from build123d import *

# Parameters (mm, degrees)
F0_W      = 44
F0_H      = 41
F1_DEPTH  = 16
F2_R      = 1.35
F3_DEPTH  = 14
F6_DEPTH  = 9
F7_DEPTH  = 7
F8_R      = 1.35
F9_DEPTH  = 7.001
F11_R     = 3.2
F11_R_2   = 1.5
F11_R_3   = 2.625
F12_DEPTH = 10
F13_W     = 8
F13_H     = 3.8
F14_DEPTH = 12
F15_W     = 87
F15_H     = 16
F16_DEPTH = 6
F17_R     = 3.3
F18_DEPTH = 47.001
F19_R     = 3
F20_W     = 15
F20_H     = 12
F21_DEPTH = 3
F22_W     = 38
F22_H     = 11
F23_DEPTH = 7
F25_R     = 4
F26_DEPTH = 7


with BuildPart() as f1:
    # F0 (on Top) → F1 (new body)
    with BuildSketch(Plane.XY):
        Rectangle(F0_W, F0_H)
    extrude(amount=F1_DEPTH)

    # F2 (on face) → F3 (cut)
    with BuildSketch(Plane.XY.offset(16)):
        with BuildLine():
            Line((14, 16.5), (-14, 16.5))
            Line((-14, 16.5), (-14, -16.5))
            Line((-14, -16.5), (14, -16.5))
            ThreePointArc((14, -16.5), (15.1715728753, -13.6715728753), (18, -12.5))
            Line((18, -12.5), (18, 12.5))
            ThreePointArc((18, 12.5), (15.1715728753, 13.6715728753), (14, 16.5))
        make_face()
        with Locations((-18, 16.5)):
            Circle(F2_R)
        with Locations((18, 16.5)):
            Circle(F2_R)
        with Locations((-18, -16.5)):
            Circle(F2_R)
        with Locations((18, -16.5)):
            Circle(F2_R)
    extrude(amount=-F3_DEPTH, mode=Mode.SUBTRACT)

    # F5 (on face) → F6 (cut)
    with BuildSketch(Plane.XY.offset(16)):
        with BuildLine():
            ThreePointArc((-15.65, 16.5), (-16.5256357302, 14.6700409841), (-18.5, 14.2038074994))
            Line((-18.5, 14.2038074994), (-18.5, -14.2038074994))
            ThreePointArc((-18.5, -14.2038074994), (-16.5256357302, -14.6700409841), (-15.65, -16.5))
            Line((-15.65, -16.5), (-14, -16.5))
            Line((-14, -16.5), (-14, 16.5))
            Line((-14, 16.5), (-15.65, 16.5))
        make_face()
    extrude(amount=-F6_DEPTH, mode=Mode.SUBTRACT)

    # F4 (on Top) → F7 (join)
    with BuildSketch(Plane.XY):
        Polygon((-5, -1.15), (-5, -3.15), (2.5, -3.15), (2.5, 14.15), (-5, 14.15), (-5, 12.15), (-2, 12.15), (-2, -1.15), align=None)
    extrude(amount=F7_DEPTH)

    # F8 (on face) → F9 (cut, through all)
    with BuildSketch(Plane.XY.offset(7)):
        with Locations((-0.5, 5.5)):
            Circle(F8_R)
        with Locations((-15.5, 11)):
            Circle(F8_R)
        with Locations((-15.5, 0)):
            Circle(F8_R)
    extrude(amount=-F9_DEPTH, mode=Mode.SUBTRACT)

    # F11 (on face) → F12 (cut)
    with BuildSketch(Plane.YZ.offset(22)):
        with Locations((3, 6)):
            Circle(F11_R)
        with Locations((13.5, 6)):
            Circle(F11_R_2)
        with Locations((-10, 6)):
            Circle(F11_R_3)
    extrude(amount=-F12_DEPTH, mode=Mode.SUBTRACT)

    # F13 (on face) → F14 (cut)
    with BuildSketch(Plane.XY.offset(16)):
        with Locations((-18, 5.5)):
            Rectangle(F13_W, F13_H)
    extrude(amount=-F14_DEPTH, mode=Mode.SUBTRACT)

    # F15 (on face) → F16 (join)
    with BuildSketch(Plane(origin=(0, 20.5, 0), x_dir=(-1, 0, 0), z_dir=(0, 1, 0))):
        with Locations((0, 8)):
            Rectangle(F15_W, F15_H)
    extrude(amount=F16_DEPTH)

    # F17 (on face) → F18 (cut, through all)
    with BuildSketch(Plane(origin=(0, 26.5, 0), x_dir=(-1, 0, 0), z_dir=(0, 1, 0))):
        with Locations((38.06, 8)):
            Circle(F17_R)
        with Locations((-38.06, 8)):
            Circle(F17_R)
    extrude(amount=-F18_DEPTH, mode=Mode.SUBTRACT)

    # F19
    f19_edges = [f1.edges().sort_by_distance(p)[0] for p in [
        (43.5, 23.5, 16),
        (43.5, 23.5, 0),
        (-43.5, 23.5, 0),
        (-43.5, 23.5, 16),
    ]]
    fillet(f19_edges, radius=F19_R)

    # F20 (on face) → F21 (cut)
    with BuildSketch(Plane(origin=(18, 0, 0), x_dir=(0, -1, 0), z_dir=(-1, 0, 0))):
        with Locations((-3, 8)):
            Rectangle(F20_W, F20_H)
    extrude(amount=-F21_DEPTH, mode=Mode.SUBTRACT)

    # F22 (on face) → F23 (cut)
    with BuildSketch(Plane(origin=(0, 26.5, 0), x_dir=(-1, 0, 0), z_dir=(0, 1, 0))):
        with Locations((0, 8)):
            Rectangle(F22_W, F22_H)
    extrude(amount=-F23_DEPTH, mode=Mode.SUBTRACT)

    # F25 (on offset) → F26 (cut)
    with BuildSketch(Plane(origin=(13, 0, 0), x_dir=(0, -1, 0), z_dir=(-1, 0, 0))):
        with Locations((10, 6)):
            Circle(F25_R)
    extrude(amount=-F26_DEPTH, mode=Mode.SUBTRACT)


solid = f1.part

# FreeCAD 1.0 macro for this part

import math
import FreeCAD as App
import Part
import Sketcher
from FreeCAD import Vector
Q = App.Units.Quantity


def edges_at(feature, points):
    """Names of the edges that pass closest to the given points."""
    edges = feature.Shape.Edges
    near = lambda p: min(range(len(edges)), key=lambda i: edges[i].distToShape(Part.Vertex(*p))[0])
    return sorted({f"Edge{near(p) + 1}" for p in points})

doc = App.newDocument("Part")
body = doc.addObject("PartDesign::Body", "Body")

sketch1 = body.newObject("Sketcher::SketchObject", "Sketch")
sketch1.AttachmentSupport = (doc.getObject("XY_Plane"), [""])
sketch1.MapMode = "FlatFace"
sketch1.addGeometry(Part.LineSegment(Vector(-22, 20, 0), Vector(-22, -20, 0)), False)
sketch1.addGeometry(Part.LineSegment(Vector(-22, -20, 0), Vector(22, -20, 0)), False)
sketch1.addGeometry(Part.LineSegment(Vector(22, -20, 0), Vector(22, 20, 0)), False)
sketch1.addGeometry(Part.LineSegment(Vector(22, 20, 0), Vector(-22, 20, 0)), False)
sketch1.addConstraint(Sketcher.Constraint("Coincident", 0, 2, 1, 1))
sketch1.addConstraint(Sketcher.Constraint("Coincident", 1, 2, 2, 1))
sketch1.addConstraint(Sketcher.Constraint("Coincident", 2, 2, 3, 1))
sketch1.addConstraint(Sketcher.Constraint("Coincident", 3, 2, 0, 1))
sketch1.addConstraint(Sketcher.Constraint("Vertical", 0))
sketch1.addConstraint(Sketcher.Constraint("Horizontal", 1))
sketch1.addConstraint(Sketcher.Constraint("Vertical", 2))
sketch1.addConstraint(Sketcher.Constraint("Horizontal", 3))
sketch1.addConstraint(Sketcher.Constraint("Symmetric", 0, 2, 2, 2, -1, 1))
sketch1.addConstraint(Sketcher.Constraint("DistanceX", 1, 1, 1, 2, Q("44 mm")))
sketch1.addConstraint(Sketcher.Constraint("DistanceY", 0, 2, 0, 1, Q("41 mm")))
pad1 = body.newObject("PartDesign::Pad", "Pad")
pad1.Profile = sketch1
pad1.Length = 16

sketch2 = body.newObject("Sketcher::SketchObject", "Sketch001")
sketch2.AttachmentSupport = (doc.getObject("XY_Plane"), [""])
sketch2.MapMode = "FlatFace"
sketch2.AttachmentOffset = App.Placement(Vector(0, 0, 16), App.Rotation())
sketch2.addGeometry(Part.LineSegment(Vector(14, 16.5, 0), Vector(-14, 16.5, 0)), False)
sketch2.addGeometry(Part.LineSegment(Vector(-14, 16.5, 0), Vector(-14, -16.5, 0)), False)
sketch2.addGeometry(Part.LineSegment(Vector(-14, -16.5, 0), Vector(14, -16.5, 0)), False)
sketch2.addGeometry(Part.ArcOfCircle(Part.Circle(Vector(18, -16.5, 0), Vector(0, 0, 1), 4), math.radians(90), math.radians(180)), False)
sketch2.addGeometry(Part.LineSegment(Vector(18, -12.5, 0), Vector(18, 12.5, 0)), False)
sketch2.addGeometry(Part.ArcOfCircle(Part.Circle(Vector(18, 16.5, 0), Vector(0, 0, 1), 4), math.radians(180), math.radians(270)), False)
sketch2.addGeometry(Part.Circle(Vector(-18, 16.5, 0), Vector(0, 0, 1), 1.4), False)
sketch2.addGeometry(Part.Circle(Vector(18, 16.5, 0), Vector(0, 0, 1), 1.4), False)
sketch2.addGeometry(Part.Circle(Vector(-18, -16.5, 0), Vector(0, 0, 1), 1.4), False)
sketch2.addGeometry(Part.Circle(Vector(18, -16.5, 0), Vector(0, 0, 1), 1.4), False)
sketch2.addConstraint(Sketcher.Constraint("Coincident", 0, 2, 1, 1))
sketch2.addConstraint(Sketcher.Constraint("Coincident", 1, 2, 2, 1))
sketch2.addConstraint(Sketcher.Constraint("Coincident", 2, 2, 3, 2))
sketch2.addConstraint(Sketcher.Constraint("Coincident", 3, 1, 4, 1))
sketch2.addConstraint(Sketcher.Constraint("Coincident", 4, 2, 5, 2))
sketch2.addConstraint(Sketcher.Constraint("Coincident", 5, 1, 0, 1))
sketch2.addConstraint(Sketcher.Constraint("Horizontal", 0))
sketch2.addConstraint(Sketcher.Constraint("Vertical", 1))
sketch2.addConstraint(Sketcher.Constraint("Horizontal", 2))
sketch2.addConstraint(Sketcher.Constraint("Vertical", 4))
sketch2.addConstraint(Sketcher.Constraint("Coincident", 7, 3, 5, 3))
sketch2.addConstraint(Sketcher.Constraint("Coincident", 9, 3, 3, 3))
sketch2.addConstraint(Sketcher.Constraint("Equal", 3, 5))
sketch2.addConstraint(Sketcher.Constraint("Equal", 6, 7))
sketch2.addConstraint(Sketcher.Constraint("Equal", 7, 8))
sketch2.addConstraint(Sketcher.Constraint("Equal", 8, 9))
sketch2.addConstraint(Sketcher.Constraint("Symmetric", 3, 3, 6, 3, -1, 1))
sketch2.addConstraint(Sketcher.Constraint("Symmetric", 5, 3, 8, 3, -1, 1))
sketch2.addConstraint(Sketcher.Constraint("Symmetric", 0, 2, 2, 2, -1, 1))
sketch2.addConstraint(Sketcher.Constraint("Symmetric", 5, 3, 6, 3, -2))
sketch2.addConstraint(Sketcher.Constraint("Horizontal", 7, 3, 0, 2))
sketch2.addConstraint(Sketcher.Constraint("Vertical", 9, 3, 3, 1))
sketch2.addConstraint(Sketcher.Constraint("Radius", 3, Q("4 mm")))
sketch2.addConstraint(Sketcher.Constraint("Diameter", 6, Q("2.7 mm")))
sketch2.addConstraint(Sketcher.Constraint("DistanceX", 0, 2, 0, 1, Q("28 mm")))
sketch2.addConstraint(Sketcher.Constraint("DistanceY", 1, 2, 1, 1, Q("33 mm")))
pocket1 = body.newObject("PartDesign::Pocket", "Pocket")
pocket1.Profile = sketch2
pocket1.Length = 14

sketch3 = body.newObject("Sketcher::SketchObject", "Sketch002")
sketch3.AttachmentSupport = (doc.getObject("XY_Plane"), [""])
sketch3.MapMode = "FlatFace"
sketch3.AttachmentOffset = App.Placement(Vector(0, 0, 16), App.Rotation())
sketch3.addGeometry(Part.ArcOfCircle(Part.Circle(Vector(-18, 16.5, 0), Vector(0, 0, 1), 2.4), math.radians(-102), math.radians(0)), False)
sketch3.addGeometry(Part.LineSegment(Vector(-18.5, 14.2, 0), Vector(-18.5, -14.2, 0)), False)
sketch3.addGeometry(Part.ArcOfCircle(Part.Circle(Vector(-18, -16.5, 0), Vector(0, 0, 1), 2.4), math.radians(0), math.radians(102)), False)
sketch3.addGeometry(Part.LineSegment(Vector(-15.7, -16.5, 0), Vector(-14, -16.5, 0)), False)
sketch3.addGeometry(Part.LineSegment(Vector(-14, -16.5, 0), Vector(-14, 16.5, 0)), False)
sketch3.addGeometry(Part.LineSegment(Vector(-14, 16.5, 0), Vector(-15.7, 16.5, 0)), False)
sketch3.addConstraint(Sketcher.Constraint("Coincident", 0, 1, 1, 1))
sketch3.addConstraint(Sketcher.Constraint("Coincident", 1, 2, 2, 2))
sketch3.addConstraint(Sketcher.Constraint("Coincident", 2, 1, 3, 1))
sketch3.addConstraint(Sketcher.Constraint("Coincident", 3, 2, 4, 1))
sketch3.addConstraint(Sketcher.Constraint("Coincident", 4, 2, 5, 1))
sketch3.addConstraint(Sketcher.Constraint("Coincident", 5, 2, 0, 2))
sketch3.addConstraint(Sketcher.Constraint("Vertical", 1))
sketch3.addConstraint(Sketcher.Constraint("Horizontal", 3))
sketch3.addConstraint(Sketcher.Constraint("Vertical", 4))
sketch3.addConstraint(Sketcher.Constraint("Horizontal", 5))
sketch3.addConstraint(Sketcher.Constraint("Equal", 0, 2))
sketch3.addConstraint(Sketcher.Constraint("Symmetric", 0, 3, 2, 3, -1))
sketch3.addConstraint(Sketcher.Constraint("Horizontal", 0, 3, 4, 2))
sketch3.addConstraint(Sketcher.Constraint("DistanceY", 4, 1, 4, 2, Q("33 mm")))
sketch3.addConstraint(Sketcher.Constraint("Radius", 0, Q("2.35 mm")))
sketch3.addConstraint(Sketcher.Constraint("DistanceX", 0, 3, -1, 1, Q("18 mm")))
sketch3.addConstraint(Sketcher.Constraint("DistanceX", 3, 2, -1, 1, Q("14 mm")))
sketch3.addConstraint(Sketcher.Constraint("DistanceY", 2, 3, 0, 3, Q("33 mm")))
sketch3.addConstraint(Sketcher.Constraint("DistanceX", 0, 1, -1, 1, Q("18.5 mm")))
pocket2 = body.newObject("PartDesign::Pocket", "Pocket001")
pocket2.Profile = sketch3
pocket2.Length = 9

sketch4 = body.newObject("Sketcher::SketchObject", "Sketch003")
sketch4.AttachmentSupport = (doc.getObject("XY_Plane"), [""])
sketch4.MapMode = "FlatFace"
sketch4.addGeometry(Part.LineSegment(Vector(-5, -1.1, 0), Vector(-5, -3.1, 0)), False)
sketch4.addGeometry(Part.LineSegment(Vector(-5, -3.1, 0), Vector(2.5, -3.1, 0)), False)
sketch4.addGeometry(Part.LineSegment(Vector(2.5, -3.1, 0), Vector(2.5, 14.2, 0)), False)
sketch4.addGeometry(Part.LineSegment(Vector(2.5, 14.2, 0), Vector(-5, 14.2, 0)), False)
sketch4.addGeometry(Part.LineSegment(Vector(-5, 14.2, 0), Vector(-5, 12.2, 0)), False)
sketch4.addGeometry(Part.LineSegment(Vector(-5, 12.2, 0), Vector(-2, 12.2, 0)), False)
sketch4.addGeometry(Part.LineSegment(Vector(-2, 12.2, 0), Vector(-2, -1.1, 0)), False)
sketch4.addGeometry(Part.LineSegment(Vector(-2, -1.1, 0), Vector(-5, -1.1, 0)), False)
sketch4.addConstraint(Sketcher.Constraint("Coincident", 0, 2, 1, 1))
sketch4.addConstraint(Sketcher.Constraint("Coincident", 1, 2, 2, 1))
sketch4.addConstraint(Sketcher.Constraint("Coincident", 2, 2, 3, 1))
sketch4.addConstraint(Sketcher.Constraint("Coincident", 3, 2, 4, 1))
sketch4.addConstraint(Sketcher.Constraint("Coincident", 4, 2, 5, 1))
sketch4.addConstraint(Sketcher.Constraint("Coincident", 5, 2, 6, 1))
sketch4.addConstraint(Sketcher.Constraint("Coincident", 6, 2, 7, 1))
sketch4.addConstraint(Sketcher.Constraint("Coincident", 7, 2, 0, 1))
sketch4.addConstraint(Sketcher.Constraint("Vertical", 0))
sketch4.addConstraint(Sketcher.Constraint("Horizontal", 1))
sketch4.addConstraint(Sketcher.Constraint("Vertical", 2))
sketch4.addConstraint(Sketcher.Constraint("Horizontal", 3))
sketch4.addConstraint(Sketcher.Constraint("Vertical", 4))
sketch4.addConstraint(Sketcher.Constraint("Horizontal", 5))
sketch4.addConstraint(Sketcher.Constraint("Vertical", 6))
sketch4.addConstraint(Sketcher.Constraint("Horizontal", 7))
sketch4.addConstraint(Sketcher.Constraint("Vertical", 0, 2, 3, 2))
sketch4.addConstraint(Sketcher.Constraint("Equal", 0, 4))
sketch4.addConstraint(Sketcher.Constraint("DistanceX", 5, 1, 5, 2, Q("3 mm")))
sketch4.addConstraint(Sketcher.Constraint("DistanceY", 0, 2, 0, 1, Q("2 mm")))
sketch4.addConstraint(Sketcher.Constraint("DistanceX", 1, 1, 1, 2, Q("7.5 mm")))
sketch4.addConstraint(Sketcher.Constraint("DistanceY", 2, 1, 2, 2, Q("17.3 mm")))
sketch4.addConstraint(Sketcher.Constraint("DistanceX", 0, 2, -1, 1, Q("5 mm")))
sketch4.addConstraint(Sketcher.Constraint("DistanceY", 0, 2, -1, 1, Q("3.15 mm")))
pad2 = body.newObject("PartDesign::Pad", "Pad001")
pad2.Profile = sketch4
pad2.Length = 7

sketch5 = body.newObject("Sketcher::SketchObject", "Sketch004")
sketch5.AttachmentSupport = (doc.getObject("XY_Plane"), [""])
sketch5.MapMode = "FlatFace"
sketch5.AttachmentOffset = App.Placement(Vector(0, 0, 7), App.Rotation())
sketch5.addGeometry(Part.Circle(Vector(-0.5, 5.5, 0), Vector(0, 0, 1), 1.4), False)
sketch5.addGeometry(Part.Circle(Vector(-15.5, 11, 0), Vector(0, 0, 1), 1.4), False)
sketch5.addGeometry(Part.Circle(Vector(-15.5, 0, 0), Vector(0, 0, 1), 1.4), False)
sketch5.addConstraint(Sketcher.Constraint("Equal", 0, 1))
sketch5.addConstraint(Sketcher.Constraint("Equal", 1, 2))
sketch5.addConstraint(Sketcher.Constraint("PointOnObject", 2, 3, -1))
sketch5.addConstraint(Sketcher.Constraint("Vertical", 1, 3, 2, 3))
sketch5.addConstraint(Sketcher.Constraint("Diameter", 0, Q("2.7 mm")))
sketch5.addConstraint(Sketcher.Constraint("DistanceY", -1, 1, 1, 3, Q("11 mm")))
sketch5.addConstraint(Sketcher.Constraint("DistanceX", 1, 3, 0, 3, Q("15 mm")))
sketch5.addConstraint(Sketcher.Constraint("DistanceX", 0, 3, -1, 1, Q("0.5 mm")))
sketch5.addConstraint(Sketcher.Constraint("DistanceY", -1, 1, 0, 3, Q("5.5 mm")))
pocket3 = body.newObject("PartDesign::Pocket", "Pocket002")
pocket3.Profile = sketch5
pocket3.Type = "ThroughAll"

sketch6 = body.newObject("Sketcher::SketchObject", "Sketch005")
sketch6.AttachmentSupport = (doc.getObject("YZ_Plane"), [""])
sketch6.MapMode = "FlatFace"
sketch6.AttachmentOffset = App.Placement(Vector(0, 0, 22), App.Rotation())
sketch6.addGeometry(Part.Circle(Vector(3, 6, 0), Vector(0, 0, 1), 3.2), False)
sketch6.addGeometry(Part.Circle(Vector(13.5, 6, 0), Vector(0, 0, 1), 1.5), False)
sketch6.addGeometry(Part.Circle(Vector(-10, 6, 0), Vector(0, 0, 1), 2.6), False)
sketch6.addConstraint(Sketcher.Constraint("Horizontal", 0, 3, 1, 3))
sketch6.addConstraint(Sketcher.Constraint("Horizontal", 1, 3, 2, 3))
sketch6.addConstraint(Sketcher.Constraint("Diameter", 1, Q("3 mm")))
sketch6.addConstraint(Sketcher.Constraint("Diameter", 0, Q("6.4 mm")))
sketch6.addConstraint(Sketcher.Constraint("Diameter", 2, Q("5.25 mm")))
sketch6.addConstraint(Sketcher.Constraint("DistanceX", -1, 1, 0, 3, Q("3 mm")))
sketch6.addConstraint(Sketcher.Constraint("DistanceY", -1, 1, 0, 3, Q("6 mm")))
sketch6.addConstraint(Sketcher.Constraint("DistanceX", 2, 3, -1, 1, Q("10 mm")))
sketch6.addConstraint(Sketcher.Constraint("DistanceX", -1, 1, 1, 3, Q("13.5 mm")))
pocket4 = body.newObject("PartDesign::Pocket", "Pocket003")
pocket4.Profile = sketch6
pocket4.Length = 10

sketch7 = body.newObject("Sketcher::SketchObject", "Sketch006")
sketch7.AttachmentSupport = (doc.getObject("XY_Plane"), [""])
sketch7.MapMode = "FlatFace"
sketch7.AttachmentOffset = App.Placement(Vector(0, 0, 16), App.Rotation())
sketch7.addGeometry(Part.LineSegment(Vector(-22, 7.4, 0), Vector(-22, 3.6, 0)), False)
sketch7.addGeometry(Part.LineSegment(Vector(-22, 3.6, 0), Vector(-14, 3.6, 0)), False)
sketch7.addGeometry(Part.LineSegment(Vector(-14, 3.6, 0), Vector(-14, 7.4, 0)), False)
sketch7.addGeometry(Part.LineSegment(Vector(-14, 7.4, 0), Vector(-22, 7.4, 0)), False)
sketch7.addConstraint(Sketcher.Constraint("Coincident", 0, 2, 1, 1))
sketch7.addConstraint(Sketcher.Constraint("Coincident", 1, 2, 2, 1))
sketch7.addConstraint(Sketcher.Constraint("Coincident", 2, 2, 3, 1))
sketch7.addConstraint(Sketcher.Constraint("Coincident", 3, 2, 0, 1))
sketch7.addConstraint(Sketcher.Constraint("Vertical", 0))
sketch7.addConstraint(Sketcher.Constraint("Horizontal", 1))
sketch7.addConstraint(Sketcher.Constraint("Vertical", 2))
sketch7.addConstraint(Sketcher.Constraint("Horizontal", 3))
sketch7.addConstraint(Sketcher.Constraint("DistanceX", 1, 1, 1, 2, Q("8 mm")))
sketch7.addConstraint(Sketcher.Constraint("DistanceY", 0, 2, 0, 1, Q("3.8 mm")))
sketch7.addConstraint(Sketcher.Constraint("DistanceX", 0, 2, -1, 1, Q("22 mm")))
sketch7.addConstraint(Sketcher.Constraint("DistanceY", -1, 1, 0, 2, Q("3.6 mm")))
pocket5 = body.newObject("PartDesign::Pocket", "Pocket004")
pocket5.Profile = sketch7
pocket5.Length = 12

sketch8 = body.newObject("Sketcher::SketchObject", "Sketch007")
sketch8.AttachmentSupport = (doc.getObject("XZ_Plane"), [""])
sketch8.MapMode = "FlatFace"
sketch8.AttachmentOffset = App.Placement(Vector(0, 0, -20.5), App.Rotation())
sketch8.addGeometry(Part.LineSegment(Vector(44, 16, 0), Vector(44, 0, 0)), False)
sketch8.addGeometry(Part.LineSegment(Vector(44, 0, 0), Vector(-44, 0, 0)), False)
sketch8.addGeometry(Part.LineSegment(Vector(-44, 0, 0), Vector(-44, 16, 0)), False)
sketch8.addGeometry(Part.LineSegment(Vector(-44, 16, 0), Vector(44, 16, 0)), False)
sketch8.addConstraint(Sketcher.Constraint("Coincident", 0, 2, 1, 1))
sketch8.addConstraint(Sketcher.Constraint("Coincident", 1, 2, 2, 1))
sketch8.addConstraint(Sketcher.Constraint("Coincident", 2, 2, 3, 1))
sketch8.addConstraint(Sketcher.Constraint("Coincident", 3, 2, 0, 1))
sketch8.addConstraint(Sketcher.Constraint("Vertical", 0))
sketch8.addConstraint(Sketcher.Constraint("Horizontal", 1))
sketch8.addConstraint(Sketcher.Constraint("Vertical", 2))
sketch8.addConstraint(Sketcher.Constraint("Horizontal", 3))
sketch8.addConstraint(Sketcher.Constraint("Symmetric", 0, 2, 1, 2, -1, 1))
sketch8.addConstraint(Sketcher.Constraint("DistanceX", 1, 2, 1, 1, Q("87 mm")))
sketch8.addConstraint(Sketcher.Constraint("DistanceY", 0, 2, 0, 1, Q("16 mm")))
pad3 = body.newObject("PartDesign::Pad", "Pad002")
pad3.Profile = sketch8
pad3.Length = 6
pad3.Reversed = True

sketch9 = body.newObject("Sketcher::SketchObject", "Sketch008")
sketch9.AttachmentSupport = (doc.getObject("XZ_Plane"), [""])
sketch9.MapMode = "FlatFace"
sketch9.AttachmentOffset = App.Placement(Vector(0, 0, -26.5), App.Rotation())
sketch9.addGeometry(Part.Circle(Vector(-38.1, 8, 0), Vector(0, 0, 1), 3.3), False)
sketch9.addGeometry(Part.Circle(Vector(38.1, 8, 0), Vector(0, 0, 1), 3.3), False)
sketch9.addConstraint(Sketcher.Constraint("Equal", 0, 1))
sketch9.addConstraint(Sketcher.Constraint("Symmetric", 0, 3, 1, 3, -2))
sketch9.addConstraint(Sketcher.Constraint("Diameter", 0, Q("6.6 mm")))
sketch9.addConstraint(Sketcher.Constraint("DistanceY", -1, 1, 0, 3, Q("8 mm")))
sketch9.addConstraint(Sketcher.Constraint("DistanceX", 0, 3, -1, 1, Q("38.06 mm")))
pocket6 = body.newObject("PartDesign::Pocket", "Pocket005")
pocket6.Profile = sketch9
pocket6.Type = "ThroughAll"
pocket6.Reversed = True
doc.recompute()

fillet = body.newObject("PartDesign::Fillet", "Fillet")
fillet.Base = (pocket6, edges_at(pocket6, [
    (43.5, 23.5, 16),
    (43.5, 23.5, 0),
    (-43.5, 23.5, 0),
    (-43.5, 23.5, 16),
]))
fillet.Radius = 3

sketch10 = body.newObject("Sketcher::SketchObject", "Sketch009")
sketch10.AttachmentSupport = (doc.getObject("YZ_Plane"), [""])
sketch10.MapMode = "FlatFace"
sketch10.AttachmentOffset = App.Placement(Vector(0, 0, 18), App.Rotation())
sketch10.addGeometry(Part.LineSegment(Vector(10, 14, 0), Vector(10, 2, 0)), False)
sketch10.addGeometry(Part.LineSegment(Vector(10, 2, 0), Vector(-4, 2, 0)), False)
sketch10.addGeometry(Part.LineSegment(Vector(-4, 2, 0), Vector(-4, 14, 0)), False)
sketch10.addGeometry(Part.LineSegment(Vector(-4, 14, 0), Vector(10, 14, 0)), False)
sketch10.addConstraint(Sketcher.Constraint("Coincident", 0, 2, 1, 1))
sketch10.addConstraint(Sketcher.Constraint("Coincident", 1, 2, 2, 1))
sketch10.addConstraint(Sketcher.Constraint("Coincident", 2, 2, 3, 1))
sketch10.addConstraint(Sketcher.Constraint("Coincident", 3, 2, 0, 1))
sketch10.addConstraint(Sketcher.Constraint("Vertical", 0))
sketch10.addConstraint(Sketcher.Constraint("Horizontal", 1))
sketch10.addConstraint(Sketcher.Constraint("Vertical", 2))
sketch10.addConstraint(Sketcher.Constraint("Horizontal", 3))
sketch10.addConstraint(Sketcher.Constraint("DistanceX", 1, 2, 1, 1, Q("15 mm")))
sketch10.addConstraint(Sketcher.Constraint("DistanceY", 0, 2, 0, 1, Q("12 mm")))
sketch10.addConstraint(Sketcher.Constraint("DistanceY", -1, 1, 0, 2, Q("2 mm")))
sketch10.addConstraint(Sketcher.Constraint("DistanceX", -1, 1, 0, 2, Q("10.5 mm")))
pocket7 = body.newObject("PartDesign::Pocket", "Pocket006")
pocket7.Profile = sketch10
pocket7.Length = 3
pocket7.Reversed = True

sketch11 = body.newObject("Sketcher::SketchObject", "Sketch010")
sketch11.AttachmentSupport = (doc.getObject("XZ_Plane"), [""])
sketch11.MapMode = "FlatFace"
sketch11.AttachmentOffset = App.Placement(Vector(0, 0, -26.5), App.Rotation())
sketch11.addGeometry(Part.LineSegment(Vector(19, 14, 0), Vector(19, 2, 0)), False)
sketch11.addGeometry(Part.LineSegment(Vector(19, 2, 0), Vector(-19, 2, 0)), False)
sketch11.addGeometry(Part.LineSegment(Vector(-19, 2, 0), Vector(-19, 14, 0)), False)
sketch11.addGeometry(Part.LineSegment(Vector(-19, 14, 0), Vector(19, 14, 0)), False)
sketch11.addConstraint(Sketcher.Constraint("Coincident", 0, 2, 1, 1))
sketch11.addConstraint(Sketcher.Constraint("Coincident", 1, 2, 2, 1))
sketch11.addConstraint(Sketcher.Constraint("Coincident", 2, 2, 3, 1))
sketch11.addConstraint(Sketcher.Constraint("Coincident", 3, 2, 0, 1))
sketch11.addConstraint(Sketcher.Constraint("Vertical", 0))
sketch11.addConstraint(Sketcher.Constraint("Horizontal", 1))
sketch11.addConstraint(Sketcher.Constraint("Vertical", 2))
sketch11.addConstraint(Sketcher.Constraint("Horizontal", 3))
sketch11.addConstraint(Sketcher.Constraint("DistanceX", 1, 2, 1, 1, Q("38 mm")))
sketch11.addConstraint(Sketcher.Constraint("DistanceY", 0, 2, 0, 1, Q("11 mm")))
sketch11.addConstraint(Sketcher.Constraint("DistanceX", -1, 1, 0, 2, Q("19 mm")))
sketch11.addConstraint(Sketcher.Constraint("DistanceY", -1, 1, 0, 2, Q("2.5 mm")))
pocket8 = body.newObject("PartDesign::Pocket", "Pocket007")
pocket8.Profile = sketch11
pocket8.Length = 7
pocket8.Reversed = True

sketch12 = body.newObject("Sketcher::SketchObject", "Sketch011")
sketch12.AttachmentSupport = (doc.getObject("YZ_Plane"), [""])
sketch12.MapMode = "FlatFace"
sketch12.AttachmentOffset = App.Placement(Vector(0, 0, 13), App.Rotation())
sketch12.addGeometry(Part.Circle(Vector(-10, 6, 0), Vector(0, 0, 1), 4), False)
sketch12.addConstraint(Sketcher.Constraint("Diameter", 0, Q("8 mm")))
sketch12.addConstraint(Sketcher.Constraint("DistanceX", 0, 3, -1, 1, Q("10 mm")))
sketch12.addConstraint(Sketcher.Constraint("DistanceY", -1, 1, 0, 3, Q("6 mm")))
pocket9 = body.newObject("PartDesign::Pocket", "Pocket008")
pocket9.Profile = sketch12
pocket9.Length = 7
pocket9.Reversed = True

doc.recompute()
